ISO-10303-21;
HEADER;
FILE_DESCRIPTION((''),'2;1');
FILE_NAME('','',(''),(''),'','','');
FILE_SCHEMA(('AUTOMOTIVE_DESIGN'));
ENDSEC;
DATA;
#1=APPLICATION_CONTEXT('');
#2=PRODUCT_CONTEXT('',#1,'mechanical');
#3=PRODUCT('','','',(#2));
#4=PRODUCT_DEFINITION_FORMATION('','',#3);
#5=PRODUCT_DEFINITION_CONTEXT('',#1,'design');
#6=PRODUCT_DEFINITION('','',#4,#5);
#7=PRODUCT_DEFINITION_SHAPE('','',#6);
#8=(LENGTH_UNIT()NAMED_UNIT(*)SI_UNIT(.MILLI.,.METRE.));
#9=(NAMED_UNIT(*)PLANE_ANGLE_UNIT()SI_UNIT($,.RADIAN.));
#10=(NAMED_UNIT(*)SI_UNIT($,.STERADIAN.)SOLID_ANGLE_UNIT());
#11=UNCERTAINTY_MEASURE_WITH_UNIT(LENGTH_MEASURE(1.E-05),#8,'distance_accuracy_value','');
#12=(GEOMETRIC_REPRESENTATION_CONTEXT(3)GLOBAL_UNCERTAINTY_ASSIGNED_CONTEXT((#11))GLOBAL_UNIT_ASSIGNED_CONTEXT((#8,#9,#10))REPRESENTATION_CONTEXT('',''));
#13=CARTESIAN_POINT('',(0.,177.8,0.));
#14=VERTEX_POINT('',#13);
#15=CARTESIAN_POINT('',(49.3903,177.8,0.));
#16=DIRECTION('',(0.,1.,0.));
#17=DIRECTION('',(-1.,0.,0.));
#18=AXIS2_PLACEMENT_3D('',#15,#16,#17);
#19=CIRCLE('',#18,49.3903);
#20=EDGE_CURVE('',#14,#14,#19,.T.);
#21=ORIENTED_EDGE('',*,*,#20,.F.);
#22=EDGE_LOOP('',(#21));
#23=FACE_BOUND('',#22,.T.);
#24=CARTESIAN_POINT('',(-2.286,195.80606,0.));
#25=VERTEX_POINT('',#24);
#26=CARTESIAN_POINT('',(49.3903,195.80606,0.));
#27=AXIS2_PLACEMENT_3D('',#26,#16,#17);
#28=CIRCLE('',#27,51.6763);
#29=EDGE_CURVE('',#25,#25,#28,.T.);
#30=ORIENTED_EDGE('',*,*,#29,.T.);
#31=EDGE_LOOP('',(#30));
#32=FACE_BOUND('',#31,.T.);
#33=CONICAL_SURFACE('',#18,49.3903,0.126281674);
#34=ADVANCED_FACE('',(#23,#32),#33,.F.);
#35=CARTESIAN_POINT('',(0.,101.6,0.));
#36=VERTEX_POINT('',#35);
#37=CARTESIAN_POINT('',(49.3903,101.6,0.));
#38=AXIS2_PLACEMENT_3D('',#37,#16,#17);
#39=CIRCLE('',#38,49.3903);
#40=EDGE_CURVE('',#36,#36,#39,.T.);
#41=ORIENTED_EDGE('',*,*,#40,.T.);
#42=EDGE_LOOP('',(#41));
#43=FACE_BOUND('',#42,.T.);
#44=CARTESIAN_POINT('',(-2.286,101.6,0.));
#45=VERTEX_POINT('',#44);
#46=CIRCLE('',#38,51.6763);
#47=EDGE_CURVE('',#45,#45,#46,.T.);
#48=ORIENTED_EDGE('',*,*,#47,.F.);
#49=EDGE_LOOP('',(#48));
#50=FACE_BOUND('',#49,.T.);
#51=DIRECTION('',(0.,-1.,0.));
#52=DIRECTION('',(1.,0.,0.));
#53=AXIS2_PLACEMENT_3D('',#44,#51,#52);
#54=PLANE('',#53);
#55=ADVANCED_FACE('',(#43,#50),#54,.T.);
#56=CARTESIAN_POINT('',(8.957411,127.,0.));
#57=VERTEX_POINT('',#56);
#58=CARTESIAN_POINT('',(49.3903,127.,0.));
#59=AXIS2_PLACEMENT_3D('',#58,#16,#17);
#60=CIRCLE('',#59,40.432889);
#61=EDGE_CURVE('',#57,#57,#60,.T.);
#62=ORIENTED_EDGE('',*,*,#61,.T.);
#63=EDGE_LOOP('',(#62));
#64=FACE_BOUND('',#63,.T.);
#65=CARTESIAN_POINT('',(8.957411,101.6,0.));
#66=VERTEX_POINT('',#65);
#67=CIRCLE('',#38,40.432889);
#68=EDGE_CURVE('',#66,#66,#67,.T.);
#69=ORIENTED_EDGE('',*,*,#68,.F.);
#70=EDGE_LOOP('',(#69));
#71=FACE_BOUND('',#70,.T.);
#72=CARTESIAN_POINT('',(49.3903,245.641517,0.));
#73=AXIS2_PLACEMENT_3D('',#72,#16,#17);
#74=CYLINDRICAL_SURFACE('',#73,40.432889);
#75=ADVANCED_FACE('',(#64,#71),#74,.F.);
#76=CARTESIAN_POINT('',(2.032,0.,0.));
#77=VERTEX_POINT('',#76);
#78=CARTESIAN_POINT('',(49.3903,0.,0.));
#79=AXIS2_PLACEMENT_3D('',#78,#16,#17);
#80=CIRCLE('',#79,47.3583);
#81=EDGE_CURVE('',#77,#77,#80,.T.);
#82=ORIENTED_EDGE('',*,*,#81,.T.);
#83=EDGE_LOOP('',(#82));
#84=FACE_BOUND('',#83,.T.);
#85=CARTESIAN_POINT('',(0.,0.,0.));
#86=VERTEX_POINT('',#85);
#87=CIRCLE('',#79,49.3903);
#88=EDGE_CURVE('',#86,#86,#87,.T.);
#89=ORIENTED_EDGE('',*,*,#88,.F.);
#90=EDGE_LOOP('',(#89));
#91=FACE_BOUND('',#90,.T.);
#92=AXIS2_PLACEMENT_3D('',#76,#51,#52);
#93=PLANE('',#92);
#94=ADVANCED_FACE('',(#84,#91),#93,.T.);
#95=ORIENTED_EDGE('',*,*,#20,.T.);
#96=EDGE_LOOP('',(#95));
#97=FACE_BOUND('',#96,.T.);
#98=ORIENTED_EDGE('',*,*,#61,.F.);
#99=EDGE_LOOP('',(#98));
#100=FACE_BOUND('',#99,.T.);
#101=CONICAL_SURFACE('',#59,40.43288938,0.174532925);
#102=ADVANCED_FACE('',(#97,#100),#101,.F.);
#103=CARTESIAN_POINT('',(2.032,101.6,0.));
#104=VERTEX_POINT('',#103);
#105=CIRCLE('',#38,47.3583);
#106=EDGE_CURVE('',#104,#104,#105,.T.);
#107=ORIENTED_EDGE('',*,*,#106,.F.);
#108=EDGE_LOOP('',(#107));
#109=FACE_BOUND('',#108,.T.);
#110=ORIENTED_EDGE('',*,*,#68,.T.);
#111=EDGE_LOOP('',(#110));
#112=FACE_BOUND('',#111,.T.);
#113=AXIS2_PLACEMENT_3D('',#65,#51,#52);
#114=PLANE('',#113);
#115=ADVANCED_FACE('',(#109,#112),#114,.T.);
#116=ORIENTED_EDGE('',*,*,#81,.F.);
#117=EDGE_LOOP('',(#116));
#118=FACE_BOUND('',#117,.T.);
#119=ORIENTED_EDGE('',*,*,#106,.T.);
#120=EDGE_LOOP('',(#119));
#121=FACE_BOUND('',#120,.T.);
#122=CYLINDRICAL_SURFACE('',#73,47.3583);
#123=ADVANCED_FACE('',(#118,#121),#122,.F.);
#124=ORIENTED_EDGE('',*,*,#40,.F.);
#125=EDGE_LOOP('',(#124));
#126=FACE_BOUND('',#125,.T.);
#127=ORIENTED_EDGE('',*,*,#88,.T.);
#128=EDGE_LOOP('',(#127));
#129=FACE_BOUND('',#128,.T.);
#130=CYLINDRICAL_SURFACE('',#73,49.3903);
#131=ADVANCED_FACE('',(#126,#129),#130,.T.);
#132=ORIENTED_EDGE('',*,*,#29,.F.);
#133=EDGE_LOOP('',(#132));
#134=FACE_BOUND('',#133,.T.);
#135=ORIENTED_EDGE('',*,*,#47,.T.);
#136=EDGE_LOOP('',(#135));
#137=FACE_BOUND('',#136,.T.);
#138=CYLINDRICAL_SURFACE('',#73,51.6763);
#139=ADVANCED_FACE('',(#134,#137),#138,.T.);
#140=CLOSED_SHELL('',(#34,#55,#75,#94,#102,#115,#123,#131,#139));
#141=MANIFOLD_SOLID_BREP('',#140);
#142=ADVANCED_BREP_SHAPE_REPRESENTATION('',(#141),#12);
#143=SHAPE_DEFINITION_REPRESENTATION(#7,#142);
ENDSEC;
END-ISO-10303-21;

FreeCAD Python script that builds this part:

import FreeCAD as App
import Part
import Sketcher

V = App.Vector
Q = App.Units.Quantity

doc = App.newDocument("Part")
params = doc.addObject("Spreadsheet::Sheet", "Params")
for row, (alias, value) in enumerate([
    ("sketch1_height", "4 in"),
    ("sketch1_height2", "1 in"),
    ("sketch1_width", "0.08 in"),
    ("sketch1_width2", "0.09 in"),
    ("revolution_angle", "360 deg"),
], start=1):
    params.set(f"A{row}", alias)
    params.set(f"B{row}", "=" + value)
    params.setAlias(f"B{row}", alias)

body = doc.addObject("PartDesign::Body", "Body")

sketch1 = doc.addObject("Sketcher::SketchObject", "Sketch")
body.addObject(sketch1)
sketch1.AttachmentSupport = (doc.XY_Plane, [""])
sketch1.MapMode = "FlatFace"
sketch1.addGeometry([
    Part.LineSegment(V(0, 0, 0), V(2, 0, 0)),
    Part.LineSegment(V(2, 0, 0), V(2, 101.6, 0)),
    Part.LineSegment(V(2, 101.6, 0), V(9, 101.6, 0)),
    Part.LineSegment(V(9, 101.6, 0), V(9, 127, 0)),
    Part.LineSegment(V(9, 127, 0), V(0, 177.8, 0)),
    Part.LineSegment(V(0, 177.8, 0), V(-2.3, 195.8, 0)),
    Part.LineSegment(V(-2.3, 195.8, 0), V(-2.3, 101.6, 0)),
    Part.LineSegment(V(-2.3, 101.6, 0), V(0, 101.6, 0)),
    Part.LineSegment(V(0, 101.6, 0), V(0, 0, 0)),
], False)
sketch1.addGeometry(Part.LineSegment(V(49.4, 195.8, 0), V(49.4, 0, 0)), True)
sketch1.addConstraint([
    Sketcher.Constraint("Coincident", 0, 2, 1, 1),
    Sketcher.Constraint("Coincident", 1, 2, 2, 1),
    Sketcher.Constraint("Coincident", 2, 2, 3, 1),
    Sketcher.Constraint("Coincident", 3, 2, 4, 1),
    Sketcher.Constraint("Coincident", 4, 2, 5, 1),
    Sketcher.Constraint("Coincident", 5, 2, 6, 1),
    Sketcher.Constraint("Coincident", 6, 2, 7, 1),
    Sketcher.Constraint("Coincident", 7, 2, 8, 1),
    Sketcher.Constraint("Coincident", 8, 2, 0, 1),
    Sketcher.Constraint("Horizontal", 0),
    Sketcher.Constraint("Vertical", 1),
    Sketcher.Constraint("Horizontal", 2),
    Sketcher.Constraint("Vertical", 3),
    Sketcher.Constraint("Vertical", 6),
    Sketcher.Constraint("Horizontal", 7),
    Sketcher.Constraint("Vertical", 8),
    Sketcher.Constraint("Vertical", 9),
    Sketcher.Constraint("Coincident", 8, 2, -1, 1),
    Sketcher.Constraint("PointOnObject", 4, 2, -2),
    Sketcher.Constraint("PointOnObject", 9, 2, -1),
    Sketcher.Constraint("Horizontal", 2, 2, 6, 2),
    Sketcher.Constraint("Horizontal", 5, 2, 9, 1),
    Sketcher.Constraint("DistanceY", 1, 1, 1, 2, Q("4 in")),
    Sketcher.Constraint("DistanceY", 3, 1, 3, 2, Q("1 in")),
    Sketcher.Constraint("DistanceY", -1, 1, 4, 2, Q("7 in")),
    Sketcher.Constraint("Angle", 4, Q("100 deg")),
    Sketcher.Constraint("DistanceX", 0, 1, 0, 2, Q("0.08 in")),
    Sketcher.Constraint("DistanceX", 7, 1, 7, 2, Q("0.09 in")),
    Sketcher.Constraint("DistanceY", 6, 2, 6, 1, Q("3.7089 in")),
    Sketcher.Constraint("DistanceX", -1, 1, 9, 1, Q("1.9445 in")),
])
sketch1.setExpression("Constraints[22]", "Params.sketch1_height")
sketch1.setExpression("Constraints[23]", "Params.sketch1_height2")
sketch1.setExpression("Constraints[26]", "Params.sketch1_width")
sketch1.setExpression("Constraints[27]", "Params.sketch1_width2")
revolution = doc.addObject("PartDesign::Revolution", "Revolution")
body.addObject(revolution)
revolution.Profile = sketch1
revolution.ReferenceAxis = (sketch1, ["Axis0"])
revolution.setExpression("Angle", "Params.revolution_angle")

doc.recompute()
